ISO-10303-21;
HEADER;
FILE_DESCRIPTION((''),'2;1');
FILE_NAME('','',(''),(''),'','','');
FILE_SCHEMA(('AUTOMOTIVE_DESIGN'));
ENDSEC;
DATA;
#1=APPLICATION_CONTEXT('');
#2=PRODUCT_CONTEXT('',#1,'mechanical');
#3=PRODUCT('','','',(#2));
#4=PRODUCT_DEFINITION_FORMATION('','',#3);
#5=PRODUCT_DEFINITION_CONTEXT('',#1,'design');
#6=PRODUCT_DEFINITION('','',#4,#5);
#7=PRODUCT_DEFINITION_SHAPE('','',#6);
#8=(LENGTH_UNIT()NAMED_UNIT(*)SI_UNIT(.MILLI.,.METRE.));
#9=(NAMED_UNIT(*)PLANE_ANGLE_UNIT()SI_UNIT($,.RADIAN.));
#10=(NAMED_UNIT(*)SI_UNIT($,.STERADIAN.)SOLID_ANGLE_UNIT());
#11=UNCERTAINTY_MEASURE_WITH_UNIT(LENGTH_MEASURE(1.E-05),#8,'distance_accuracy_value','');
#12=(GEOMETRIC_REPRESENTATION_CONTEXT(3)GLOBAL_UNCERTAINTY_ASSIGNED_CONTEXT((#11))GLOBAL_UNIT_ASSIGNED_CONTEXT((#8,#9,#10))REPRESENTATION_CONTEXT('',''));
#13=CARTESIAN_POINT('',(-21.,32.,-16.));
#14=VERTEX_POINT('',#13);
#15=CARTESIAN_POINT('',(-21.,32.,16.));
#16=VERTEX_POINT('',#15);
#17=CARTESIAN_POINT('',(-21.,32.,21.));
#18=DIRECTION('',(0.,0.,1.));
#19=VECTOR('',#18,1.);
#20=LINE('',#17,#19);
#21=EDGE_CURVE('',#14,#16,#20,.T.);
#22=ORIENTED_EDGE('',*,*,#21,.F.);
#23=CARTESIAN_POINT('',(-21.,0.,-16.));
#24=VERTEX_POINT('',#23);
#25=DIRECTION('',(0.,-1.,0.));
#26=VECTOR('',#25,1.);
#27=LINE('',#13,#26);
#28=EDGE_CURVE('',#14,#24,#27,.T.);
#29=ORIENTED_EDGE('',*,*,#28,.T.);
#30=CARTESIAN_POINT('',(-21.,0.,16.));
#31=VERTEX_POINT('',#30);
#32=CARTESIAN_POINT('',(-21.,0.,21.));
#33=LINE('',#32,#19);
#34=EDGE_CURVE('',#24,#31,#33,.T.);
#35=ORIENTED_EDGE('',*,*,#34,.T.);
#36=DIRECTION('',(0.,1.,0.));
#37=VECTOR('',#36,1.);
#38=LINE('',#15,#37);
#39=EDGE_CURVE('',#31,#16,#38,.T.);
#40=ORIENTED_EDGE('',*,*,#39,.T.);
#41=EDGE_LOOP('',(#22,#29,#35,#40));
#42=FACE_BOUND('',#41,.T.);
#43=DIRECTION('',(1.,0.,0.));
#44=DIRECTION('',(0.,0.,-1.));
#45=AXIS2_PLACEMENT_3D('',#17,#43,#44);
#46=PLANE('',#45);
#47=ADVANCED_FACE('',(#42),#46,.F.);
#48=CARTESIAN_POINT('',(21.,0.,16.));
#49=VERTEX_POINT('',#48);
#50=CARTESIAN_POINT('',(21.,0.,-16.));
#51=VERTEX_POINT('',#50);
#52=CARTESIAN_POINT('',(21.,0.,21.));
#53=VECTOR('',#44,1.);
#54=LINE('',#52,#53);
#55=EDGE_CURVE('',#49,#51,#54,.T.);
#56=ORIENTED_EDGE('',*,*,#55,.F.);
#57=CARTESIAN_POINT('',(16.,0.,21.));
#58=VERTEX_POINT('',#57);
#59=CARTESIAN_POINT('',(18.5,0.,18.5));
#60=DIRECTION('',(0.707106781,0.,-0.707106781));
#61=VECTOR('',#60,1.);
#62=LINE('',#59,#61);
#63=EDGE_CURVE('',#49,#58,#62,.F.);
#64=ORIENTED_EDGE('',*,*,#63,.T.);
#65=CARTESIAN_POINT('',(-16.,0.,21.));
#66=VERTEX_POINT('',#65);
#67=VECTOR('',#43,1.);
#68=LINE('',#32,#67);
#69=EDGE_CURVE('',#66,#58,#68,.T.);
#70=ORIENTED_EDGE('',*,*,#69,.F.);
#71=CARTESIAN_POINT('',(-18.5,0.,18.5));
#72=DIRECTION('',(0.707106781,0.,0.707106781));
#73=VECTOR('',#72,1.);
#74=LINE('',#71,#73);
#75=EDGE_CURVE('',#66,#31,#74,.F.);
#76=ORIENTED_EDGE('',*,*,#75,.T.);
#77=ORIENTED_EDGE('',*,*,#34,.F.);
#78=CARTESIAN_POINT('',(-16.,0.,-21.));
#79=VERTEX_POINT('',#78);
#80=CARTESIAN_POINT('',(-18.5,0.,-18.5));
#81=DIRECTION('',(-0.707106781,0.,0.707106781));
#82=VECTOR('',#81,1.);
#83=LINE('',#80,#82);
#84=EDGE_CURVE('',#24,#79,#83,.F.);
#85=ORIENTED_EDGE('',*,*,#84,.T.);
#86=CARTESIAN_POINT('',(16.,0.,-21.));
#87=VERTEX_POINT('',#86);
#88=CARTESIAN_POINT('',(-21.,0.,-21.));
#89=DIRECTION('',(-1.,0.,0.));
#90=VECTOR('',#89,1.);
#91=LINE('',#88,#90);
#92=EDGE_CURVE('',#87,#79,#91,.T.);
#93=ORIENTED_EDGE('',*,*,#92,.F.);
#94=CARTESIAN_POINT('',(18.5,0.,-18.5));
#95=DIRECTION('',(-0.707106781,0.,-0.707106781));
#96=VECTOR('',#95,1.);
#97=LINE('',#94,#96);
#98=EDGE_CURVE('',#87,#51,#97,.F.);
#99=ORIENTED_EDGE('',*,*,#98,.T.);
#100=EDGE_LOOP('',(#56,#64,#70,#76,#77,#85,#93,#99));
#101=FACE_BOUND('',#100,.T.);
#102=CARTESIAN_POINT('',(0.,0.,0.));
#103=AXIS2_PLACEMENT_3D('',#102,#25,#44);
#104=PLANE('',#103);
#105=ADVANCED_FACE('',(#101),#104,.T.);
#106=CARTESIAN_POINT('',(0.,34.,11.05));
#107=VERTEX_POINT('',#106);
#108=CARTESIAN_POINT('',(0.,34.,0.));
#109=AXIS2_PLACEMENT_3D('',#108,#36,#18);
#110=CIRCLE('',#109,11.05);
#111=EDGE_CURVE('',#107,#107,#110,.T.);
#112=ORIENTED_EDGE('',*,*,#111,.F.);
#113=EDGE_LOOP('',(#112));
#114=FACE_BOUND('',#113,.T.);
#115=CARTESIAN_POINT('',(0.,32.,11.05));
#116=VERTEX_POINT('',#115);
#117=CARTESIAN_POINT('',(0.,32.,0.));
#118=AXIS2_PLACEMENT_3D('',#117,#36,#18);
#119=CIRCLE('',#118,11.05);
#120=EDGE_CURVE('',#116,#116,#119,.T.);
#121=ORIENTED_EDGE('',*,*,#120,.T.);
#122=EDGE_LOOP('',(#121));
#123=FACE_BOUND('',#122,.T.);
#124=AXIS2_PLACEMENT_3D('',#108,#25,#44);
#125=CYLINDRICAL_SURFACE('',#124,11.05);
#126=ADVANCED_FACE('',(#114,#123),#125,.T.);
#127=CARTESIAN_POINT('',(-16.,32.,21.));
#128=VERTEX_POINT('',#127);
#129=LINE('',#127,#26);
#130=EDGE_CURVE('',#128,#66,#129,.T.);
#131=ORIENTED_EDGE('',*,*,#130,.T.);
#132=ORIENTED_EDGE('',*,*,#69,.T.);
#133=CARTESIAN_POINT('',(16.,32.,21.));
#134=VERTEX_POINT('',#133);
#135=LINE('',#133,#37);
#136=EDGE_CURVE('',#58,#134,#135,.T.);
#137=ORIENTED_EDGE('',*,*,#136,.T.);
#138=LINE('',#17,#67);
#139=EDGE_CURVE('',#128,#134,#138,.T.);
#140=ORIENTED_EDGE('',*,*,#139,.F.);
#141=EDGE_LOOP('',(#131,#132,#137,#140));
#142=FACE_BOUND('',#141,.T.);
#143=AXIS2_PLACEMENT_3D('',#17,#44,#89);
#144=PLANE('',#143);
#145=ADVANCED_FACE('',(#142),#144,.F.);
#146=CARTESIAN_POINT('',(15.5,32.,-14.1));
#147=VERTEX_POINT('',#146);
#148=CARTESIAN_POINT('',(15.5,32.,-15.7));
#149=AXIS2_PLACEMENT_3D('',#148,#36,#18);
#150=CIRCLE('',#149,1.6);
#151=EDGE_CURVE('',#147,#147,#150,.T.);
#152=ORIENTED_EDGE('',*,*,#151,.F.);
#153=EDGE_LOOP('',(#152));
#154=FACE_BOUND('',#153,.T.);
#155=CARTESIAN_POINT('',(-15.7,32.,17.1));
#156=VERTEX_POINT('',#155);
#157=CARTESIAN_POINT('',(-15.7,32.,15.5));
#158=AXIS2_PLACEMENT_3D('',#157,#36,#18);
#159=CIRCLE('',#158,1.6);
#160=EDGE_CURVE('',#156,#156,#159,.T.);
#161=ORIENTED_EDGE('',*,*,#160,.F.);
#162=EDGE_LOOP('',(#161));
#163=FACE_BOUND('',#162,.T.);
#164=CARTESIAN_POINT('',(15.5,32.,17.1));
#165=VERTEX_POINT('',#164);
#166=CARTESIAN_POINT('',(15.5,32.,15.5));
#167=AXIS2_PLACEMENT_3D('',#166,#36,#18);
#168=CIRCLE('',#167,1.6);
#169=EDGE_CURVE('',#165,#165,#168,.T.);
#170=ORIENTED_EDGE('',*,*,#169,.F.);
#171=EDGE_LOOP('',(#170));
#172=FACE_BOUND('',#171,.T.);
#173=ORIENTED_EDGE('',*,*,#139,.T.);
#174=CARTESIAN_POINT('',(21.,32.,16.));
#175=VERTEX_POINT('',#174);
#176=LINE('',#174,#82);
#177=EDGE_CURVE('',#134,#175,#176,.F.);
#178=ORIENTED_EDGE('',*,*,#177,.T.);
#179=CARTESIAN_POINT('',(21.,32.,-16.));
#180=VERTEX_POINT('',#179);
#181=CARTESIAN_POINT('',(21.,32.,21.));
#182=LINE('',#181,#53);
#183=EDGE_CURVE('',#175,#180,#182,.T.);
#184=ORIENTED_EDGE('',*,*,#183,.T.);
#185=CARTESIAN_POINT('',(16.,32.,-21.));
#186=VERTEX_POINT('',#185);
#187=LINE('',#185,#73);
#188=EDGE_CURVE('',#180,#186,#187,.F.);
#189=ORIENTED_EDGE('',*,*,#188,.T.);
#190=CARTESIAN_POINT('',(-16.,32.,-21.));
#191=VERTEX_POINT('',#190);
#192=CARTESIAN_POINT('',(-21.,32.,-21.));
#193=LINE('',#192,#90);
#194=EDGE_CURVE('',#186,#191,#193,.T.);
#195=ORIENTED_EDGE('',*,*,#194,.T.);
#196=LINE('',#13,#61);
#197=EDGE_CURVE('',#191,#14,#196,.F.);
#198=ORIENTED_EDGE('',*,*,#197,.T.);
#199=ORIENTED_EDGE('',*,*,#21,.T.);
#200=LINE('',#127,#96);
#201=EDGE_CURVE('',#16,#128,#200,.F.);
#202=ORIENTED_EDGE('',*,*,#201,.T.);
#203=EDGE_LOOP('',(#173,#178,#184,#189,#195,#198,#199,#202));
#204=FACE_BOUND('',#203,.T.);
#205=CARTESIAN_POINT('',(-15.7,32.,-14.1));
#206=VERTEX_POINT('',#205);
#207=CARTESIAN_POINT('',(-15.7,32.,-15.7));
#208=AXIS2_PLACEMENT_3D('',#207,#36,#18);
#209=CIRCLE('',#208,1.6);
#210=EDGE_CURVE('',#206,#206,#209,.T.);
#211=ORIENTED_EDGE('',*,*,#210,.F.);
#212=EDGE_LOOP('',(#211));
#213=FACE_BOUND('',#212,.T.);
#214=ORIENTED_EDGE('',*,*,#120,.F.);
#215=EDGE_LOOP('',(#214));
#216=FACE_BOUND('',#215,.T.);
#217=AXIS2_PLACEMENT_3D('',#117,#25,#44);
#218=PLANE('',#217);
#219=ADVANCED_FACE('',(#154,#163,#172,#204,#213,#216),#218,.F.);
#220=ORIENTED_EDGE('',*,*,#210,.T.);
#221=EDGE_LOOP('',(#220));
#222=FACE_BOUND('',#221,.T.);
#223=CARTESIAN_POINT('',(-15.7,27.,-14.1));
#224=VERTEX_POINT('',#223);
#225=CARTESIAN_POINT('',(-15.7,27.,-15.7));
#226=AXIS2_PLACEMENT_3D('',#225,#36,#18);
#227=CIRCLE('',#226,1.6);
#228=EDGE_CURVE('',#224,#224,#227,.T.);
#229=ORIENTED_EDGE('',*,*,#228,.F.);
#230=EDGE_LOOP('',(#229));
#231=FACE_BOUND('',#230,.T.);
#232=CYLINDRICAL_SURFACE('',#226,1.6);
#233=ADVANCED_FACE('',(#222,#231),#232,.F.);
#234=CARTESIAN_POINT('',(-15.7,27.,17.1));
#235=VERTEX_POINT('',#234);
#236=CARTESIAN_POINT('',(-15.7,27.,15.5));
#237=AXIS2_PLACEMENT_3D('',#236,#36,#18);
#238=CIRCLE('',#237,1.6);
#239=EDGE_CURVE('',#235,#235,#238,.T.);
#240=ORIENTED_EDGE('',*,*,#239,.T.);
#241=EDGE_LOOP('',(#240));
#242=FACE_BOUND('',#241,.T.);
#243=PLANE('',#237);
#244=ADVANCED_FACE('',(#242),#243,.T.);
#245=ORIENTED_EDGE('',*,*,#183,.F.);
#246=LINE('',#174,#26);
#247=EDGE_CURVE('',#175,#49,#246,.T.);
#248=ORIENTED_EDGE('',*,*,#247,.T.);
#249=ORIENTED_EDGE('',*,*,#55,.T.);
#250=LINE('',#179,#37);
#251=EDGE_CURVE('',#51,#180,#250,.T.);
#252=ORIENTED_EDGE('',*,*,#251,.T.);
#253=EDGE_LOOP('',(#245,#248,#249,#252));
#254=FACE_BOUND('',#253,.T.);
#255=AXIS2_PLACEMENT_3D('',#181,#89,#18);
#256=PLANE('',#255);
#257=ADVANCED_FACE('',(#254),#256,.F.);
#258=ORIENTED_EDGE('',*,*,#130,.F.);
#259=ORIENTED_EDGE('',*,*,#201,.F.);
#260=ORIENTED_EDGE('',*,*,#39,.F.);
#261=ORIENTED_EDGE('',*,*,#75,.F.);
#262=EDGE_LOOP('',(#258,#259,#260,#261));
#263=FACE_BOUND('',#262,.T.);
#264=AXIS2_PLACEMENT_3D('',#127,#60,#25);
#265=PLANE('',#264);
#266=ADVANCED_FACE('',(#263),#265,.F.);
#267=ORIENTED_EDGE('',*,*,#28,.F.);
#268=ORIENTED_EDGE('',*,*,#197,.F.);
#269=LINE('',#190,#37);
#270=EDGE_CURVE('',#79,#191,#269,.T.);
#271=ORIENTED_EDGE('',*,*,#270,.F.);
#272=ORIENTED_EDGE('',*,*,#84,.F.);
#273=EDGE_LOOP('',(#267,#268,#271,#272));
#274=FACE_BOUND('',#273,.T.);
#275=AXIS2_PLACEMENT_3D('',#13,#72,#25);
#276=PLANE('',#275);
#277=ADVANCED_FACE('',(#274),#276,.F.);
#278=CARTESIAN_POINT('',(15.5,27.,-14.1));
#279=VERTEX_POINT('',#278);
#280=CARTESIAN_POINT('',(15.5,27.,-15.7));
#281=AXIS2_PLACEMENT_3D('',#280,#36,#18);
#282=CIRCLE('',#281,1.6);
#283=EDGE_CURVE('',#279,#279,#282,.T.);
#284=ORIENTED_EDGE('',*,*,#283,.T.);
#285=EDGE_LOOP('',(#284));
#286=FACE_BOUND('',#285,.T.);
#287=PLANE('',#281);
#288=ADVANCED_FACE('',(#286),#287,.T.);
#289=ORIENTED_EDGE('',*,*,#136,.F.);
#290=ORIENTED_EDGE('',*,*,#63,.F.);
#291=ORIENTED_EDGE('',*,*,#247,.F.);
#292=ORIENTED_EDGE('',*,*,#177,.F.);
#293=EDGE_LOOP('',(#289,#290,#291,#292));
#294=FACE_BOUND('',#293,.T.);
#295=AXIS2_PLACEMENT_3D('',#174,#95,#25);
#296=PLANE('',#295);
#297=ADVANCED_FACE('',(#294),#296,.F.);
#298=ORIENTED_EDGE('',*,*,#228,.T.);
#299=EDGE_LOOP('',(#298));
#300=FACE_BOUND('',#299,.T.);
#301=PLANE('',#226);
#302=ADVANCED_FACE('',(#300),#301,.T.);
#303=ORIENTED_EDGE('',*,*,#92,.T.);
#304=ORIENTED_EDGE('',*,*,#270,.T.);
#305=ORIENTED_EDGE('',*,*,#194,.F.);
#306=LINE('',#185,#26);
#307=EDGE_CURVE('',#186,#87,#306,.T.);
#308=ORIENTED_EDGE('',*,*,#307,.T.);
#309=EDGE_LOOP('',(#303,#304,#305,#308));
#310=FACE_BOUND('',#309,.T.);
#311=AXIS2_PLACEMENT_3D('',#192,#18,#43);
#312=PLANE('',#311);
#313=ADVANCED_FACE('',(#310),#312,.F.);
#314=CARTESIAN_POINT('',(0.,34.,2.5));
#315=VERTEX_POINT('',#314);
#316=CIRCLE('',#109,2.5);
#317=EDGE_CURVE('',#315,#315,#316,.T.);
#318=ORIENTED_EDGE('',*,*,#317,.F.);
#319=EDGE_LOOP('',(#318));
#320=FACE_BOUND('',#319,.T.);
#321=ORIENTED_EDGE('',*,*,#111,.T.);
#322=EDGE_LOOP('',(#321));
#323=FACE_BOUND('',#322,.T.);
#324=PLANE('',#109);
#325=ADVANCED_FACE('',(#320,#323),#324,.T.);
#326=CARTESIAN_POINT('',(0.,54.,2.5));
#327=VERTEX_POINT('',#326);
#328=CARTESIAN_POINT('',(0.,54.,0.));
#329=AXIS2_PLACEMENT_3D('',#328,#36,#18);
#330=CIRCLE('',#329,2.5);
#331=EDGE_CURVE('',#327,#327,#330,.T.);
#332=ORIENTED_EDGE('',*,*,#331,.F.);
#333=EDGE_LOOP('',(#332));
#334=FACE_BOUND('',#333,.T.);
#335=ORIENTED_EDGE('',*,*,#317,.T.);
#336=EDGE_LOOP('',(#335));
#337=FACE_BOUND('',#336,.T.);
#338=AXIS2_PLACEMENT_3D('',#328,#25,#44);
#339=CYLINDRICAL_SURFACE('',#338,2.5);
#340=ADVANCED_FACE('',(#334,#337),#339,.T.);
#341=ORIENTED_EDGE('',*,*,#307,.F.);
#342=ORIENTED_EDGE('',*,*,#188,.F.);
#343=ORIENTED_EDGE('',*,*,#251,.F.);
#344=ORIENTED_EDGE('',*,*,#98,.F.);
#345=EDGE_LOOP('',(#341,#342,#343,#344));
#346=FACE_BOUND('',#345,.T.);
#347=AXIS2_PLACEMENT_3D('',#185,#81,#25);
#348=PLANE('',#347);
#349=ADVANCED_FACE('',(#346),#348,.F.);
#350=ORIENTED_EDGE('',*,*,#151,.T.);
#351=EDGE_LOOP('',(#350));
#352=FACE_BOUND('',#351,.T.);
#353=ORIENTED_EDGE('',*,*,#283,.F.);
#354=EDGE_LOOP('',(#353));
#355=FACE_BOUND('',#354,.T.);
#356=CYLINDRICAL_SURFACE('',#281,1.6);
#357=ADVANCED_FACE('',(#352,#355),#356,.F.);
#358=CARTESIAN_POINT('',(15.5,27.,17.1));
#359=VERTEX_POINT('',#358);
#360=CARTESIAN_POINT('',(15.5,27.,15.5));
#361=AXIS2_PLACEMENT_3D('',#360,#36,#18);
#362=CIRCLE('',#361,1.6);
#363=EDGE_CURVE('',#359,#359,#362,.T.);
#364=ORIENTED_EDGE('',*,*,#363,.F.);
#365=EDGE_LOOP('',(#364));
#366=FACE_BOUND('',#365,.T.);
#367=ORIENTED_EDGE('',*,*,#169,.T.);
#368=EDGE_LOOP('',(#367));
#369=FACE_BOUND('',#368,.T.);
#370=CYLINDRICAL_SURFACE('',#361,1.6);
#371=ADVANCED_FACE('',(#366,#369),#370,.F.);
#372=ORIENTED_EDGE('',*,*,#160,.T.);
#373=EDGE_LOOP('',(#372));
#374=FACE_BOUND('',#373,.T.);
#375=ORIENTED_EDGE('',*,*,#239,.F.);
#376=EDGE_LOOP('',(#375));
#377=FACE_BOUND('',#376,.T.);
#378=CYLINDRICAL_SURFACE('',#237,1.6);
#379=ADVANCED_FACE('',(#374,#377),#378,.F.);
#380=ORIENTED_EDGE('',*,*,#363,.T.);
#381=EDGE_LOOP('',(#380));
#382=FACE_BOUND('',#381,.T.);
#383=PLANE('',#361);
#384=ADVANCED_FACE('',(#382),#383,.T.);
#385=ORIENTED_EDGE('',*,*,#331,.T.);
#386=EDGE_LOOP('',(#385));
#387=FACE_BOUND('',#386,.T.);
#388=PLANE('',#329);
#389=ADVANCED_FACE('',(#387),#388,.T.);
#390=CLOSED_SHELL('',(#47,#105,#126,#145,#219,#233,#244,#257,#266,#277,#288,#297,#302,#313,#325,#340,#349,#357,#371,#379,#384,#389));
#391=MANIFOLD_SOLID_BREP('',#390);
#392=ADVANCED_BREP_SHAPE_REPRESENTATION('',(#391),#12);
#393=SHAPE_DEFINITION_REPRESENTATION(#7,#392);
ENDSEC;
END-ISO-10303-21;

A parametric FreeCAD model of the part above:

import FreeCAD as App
import Part
import Sketcher

V = App.Vector


def edges_at(feature, points):
    """Names of the edges that pass closest to the given points."""
    edges = feature.Shape.Edges
    near = lambda p: min(range(len(edges)), key=lambda i: edges[i].distToShape(Part.Vertex(*p))[0])
    return sorted({f"Edge{near(p) + 1}" for p in points})

doc = App.newDocument("Part")
body = doc.addObject("PartDesign::Body", "Body")

# Sketch on XZ plane
sketch1 = body.newObject("Sketcher::SketchObject", "Sketch")
sketch1.AttachmentSupport = (doc.getObject("XZ_Plane"), [""])
sketch1.MapMode = "FlatFace"
sketch1.addGeometry([
    Part.LineSegment(V(-21, -21, 0), V(-21, 21, 0)),
    Part.LineSegment(V(-21, 21, 0), V(21, 21, 0)),
    Part.LineSegment(V(21, 21, 0), V(21, -21, 0)),
    Part.LineSegment(V(21, -21, 0), V(-21, -21, 0)),
], False)
sketch1.addConstraint([
    Sketcher.Constraint("Coincident", 0, 2, 1, 1),
    Sketcher.Constraint("Coincident", 1, 2, 2, 1),
    Sketcher.Constraint("Coincident", 2, 2, 3, 1),
    Sketcher.Constraint("Coincident", 3, 2, 0, 1),
    Sketcher.Constraint("Vertical", 0),
    Sketcher.Constraint("Horizontal", 1),
    Sketcher.Constraint("Vertical", 2),
    Sketcher.Constraint("Horizontal", 3),
    Sketcher.Constraint("Symmetric", 0, 2, 2, 2, -1, 1),
    Sketcher.Constraint("Equal", 3, 0),
    Sketcher.Constraint("DistanceX", 1, 1, 1, 2, 42.0),
])
pad1 = body.newObject("PartDesign::Pad", "Pad")
pad1.Profile = sketch1
pad1.Length = 32
pad1.Reversed = True
doc.recompute()

chamfer = body.newObject("PartDesign::Chamfer", "Chamfer")
chamfer.Base = (pad1, edges_at(pad1, [
    (21, 16, 21),
    (-21, 16, 21),
    (-21, 16, -21),
    (21, 16, -21),
]))
chamfer.Size = 5

# Sketch on XZ plane
sketch2 = body.newObject("Sketcher::SketchObject", "Sketch001")
sketch2.AttachmentSupport = (doc.getObject("XZ_Plane"), [""])
sketch2.MapMode = "FlatFace"
sketch2.AttachmentOffset = App.Placement(V(0, 0, -32), App.Rotation())
sketch2.addGeometry(Part.Circle(V(0, 0, 0), V(0, 0, 1), 11.05), False)
sketch2.addConstraint([
    Sketcher.Constraint("Coincident", 0, 3, -1, 1),
    Sketcher.Constraint("Diameter", 0, 22.1),
])
pad2 = body.newObject("PartDesign::Pad", "Pad001")
pad2.Profile = sketch2
pad2.Length = 2
pad2.Reversed = True

# Sketch on XZ plane
sketch3 = body.newObject("Sketcher::SketchObject", "Sketch002")
sketch3.AttachmentSupport = (doc.getObject("XZ_Plane"), [""])
sketch3.MapMode = "FlatFace"
sketch3.AttachmentOffset = App.Placement(V(0, 0, -34), App.Rotation())
sketch3.addGeometry(Part.Circle(V(0, 0, 0), V(0, 0, 1), 2.5), False)
sketch3.addConstraint([
    Sketcher.Constraint("Coincident", 0, 3, -1, 1),
    Sketcher.Constraint("Diameter", 0, 5.0),
])
pad3 = body.newObject("PartDesign::Pad", "Pad002")
pad3.Profile = sketch3
pad3.Length = 20
pad3.Reversed = True

# Sketch on XZ plane
sketch4 = body.newObject("Sketcher::SketchObject", "Sketch003")
sketch4.AttachmentSupport = (doc.getObject("XZ_Plane"), [""])
sketch4.MapMode = "FlatFace"
sketch4.AttachmentOffset = App.Placement(V(0, 0, -32), App.Rotation())
sketch4.addGeometry([
    Part.Circle(V(-15.7, -15.7, 0), V(0, 0, 1), 1.6),
    Part.Circle(V(15.5, -15.7, 0), V(0, 0, 1), 1.6),
    Part.Circle(V(15.5, 15.5, 0), V(0, 0, 1), 1.6),
    Part.Circle(V(-15.7, 15.5, 0), V(0, 0, 1), 1.6),
], False)
sketch4.addConstraint([
    Sketcher.Constraint("Equal", 0, 1),
    Sketcher.Constraint("Equal", 1, 2),
    Sketcher.Constraint("Equal", 2, 3),
    Sketcher.Constraint("Horizontal", 0, 3, 1, 3),
    Sketcher.Constraint("Horizontal", 2, 3, 3, 3),
    Sketcher.Constraint("Vertical", 1, 3, 2, 3),
    Sketcher.Constraint("Vertical", 0, 3, 3, 3),
    Sketcher.Constraint("Diameter", 0, 3.2),
    Sketcher.Constraint("DistanceX", 0, 3, -1, 1, 15.7),
    Sketcher.Constraint("DistanceY", 0, 3, -1, 1, 15.7),
    Sketcher.Constraint("DistanceX", -1, 1, 1, 3, 15.5),
    Sketcher.Constraint("DistanceY", -1, 1, 2, 3, 15.5),
])
pocket1 = body.newObject("PartDesign::Pocket", "Pocket")
pocket1.Profile = sketch4
pocket1.Length = 5
pocket1.Reversed = True

doc.recompute()
